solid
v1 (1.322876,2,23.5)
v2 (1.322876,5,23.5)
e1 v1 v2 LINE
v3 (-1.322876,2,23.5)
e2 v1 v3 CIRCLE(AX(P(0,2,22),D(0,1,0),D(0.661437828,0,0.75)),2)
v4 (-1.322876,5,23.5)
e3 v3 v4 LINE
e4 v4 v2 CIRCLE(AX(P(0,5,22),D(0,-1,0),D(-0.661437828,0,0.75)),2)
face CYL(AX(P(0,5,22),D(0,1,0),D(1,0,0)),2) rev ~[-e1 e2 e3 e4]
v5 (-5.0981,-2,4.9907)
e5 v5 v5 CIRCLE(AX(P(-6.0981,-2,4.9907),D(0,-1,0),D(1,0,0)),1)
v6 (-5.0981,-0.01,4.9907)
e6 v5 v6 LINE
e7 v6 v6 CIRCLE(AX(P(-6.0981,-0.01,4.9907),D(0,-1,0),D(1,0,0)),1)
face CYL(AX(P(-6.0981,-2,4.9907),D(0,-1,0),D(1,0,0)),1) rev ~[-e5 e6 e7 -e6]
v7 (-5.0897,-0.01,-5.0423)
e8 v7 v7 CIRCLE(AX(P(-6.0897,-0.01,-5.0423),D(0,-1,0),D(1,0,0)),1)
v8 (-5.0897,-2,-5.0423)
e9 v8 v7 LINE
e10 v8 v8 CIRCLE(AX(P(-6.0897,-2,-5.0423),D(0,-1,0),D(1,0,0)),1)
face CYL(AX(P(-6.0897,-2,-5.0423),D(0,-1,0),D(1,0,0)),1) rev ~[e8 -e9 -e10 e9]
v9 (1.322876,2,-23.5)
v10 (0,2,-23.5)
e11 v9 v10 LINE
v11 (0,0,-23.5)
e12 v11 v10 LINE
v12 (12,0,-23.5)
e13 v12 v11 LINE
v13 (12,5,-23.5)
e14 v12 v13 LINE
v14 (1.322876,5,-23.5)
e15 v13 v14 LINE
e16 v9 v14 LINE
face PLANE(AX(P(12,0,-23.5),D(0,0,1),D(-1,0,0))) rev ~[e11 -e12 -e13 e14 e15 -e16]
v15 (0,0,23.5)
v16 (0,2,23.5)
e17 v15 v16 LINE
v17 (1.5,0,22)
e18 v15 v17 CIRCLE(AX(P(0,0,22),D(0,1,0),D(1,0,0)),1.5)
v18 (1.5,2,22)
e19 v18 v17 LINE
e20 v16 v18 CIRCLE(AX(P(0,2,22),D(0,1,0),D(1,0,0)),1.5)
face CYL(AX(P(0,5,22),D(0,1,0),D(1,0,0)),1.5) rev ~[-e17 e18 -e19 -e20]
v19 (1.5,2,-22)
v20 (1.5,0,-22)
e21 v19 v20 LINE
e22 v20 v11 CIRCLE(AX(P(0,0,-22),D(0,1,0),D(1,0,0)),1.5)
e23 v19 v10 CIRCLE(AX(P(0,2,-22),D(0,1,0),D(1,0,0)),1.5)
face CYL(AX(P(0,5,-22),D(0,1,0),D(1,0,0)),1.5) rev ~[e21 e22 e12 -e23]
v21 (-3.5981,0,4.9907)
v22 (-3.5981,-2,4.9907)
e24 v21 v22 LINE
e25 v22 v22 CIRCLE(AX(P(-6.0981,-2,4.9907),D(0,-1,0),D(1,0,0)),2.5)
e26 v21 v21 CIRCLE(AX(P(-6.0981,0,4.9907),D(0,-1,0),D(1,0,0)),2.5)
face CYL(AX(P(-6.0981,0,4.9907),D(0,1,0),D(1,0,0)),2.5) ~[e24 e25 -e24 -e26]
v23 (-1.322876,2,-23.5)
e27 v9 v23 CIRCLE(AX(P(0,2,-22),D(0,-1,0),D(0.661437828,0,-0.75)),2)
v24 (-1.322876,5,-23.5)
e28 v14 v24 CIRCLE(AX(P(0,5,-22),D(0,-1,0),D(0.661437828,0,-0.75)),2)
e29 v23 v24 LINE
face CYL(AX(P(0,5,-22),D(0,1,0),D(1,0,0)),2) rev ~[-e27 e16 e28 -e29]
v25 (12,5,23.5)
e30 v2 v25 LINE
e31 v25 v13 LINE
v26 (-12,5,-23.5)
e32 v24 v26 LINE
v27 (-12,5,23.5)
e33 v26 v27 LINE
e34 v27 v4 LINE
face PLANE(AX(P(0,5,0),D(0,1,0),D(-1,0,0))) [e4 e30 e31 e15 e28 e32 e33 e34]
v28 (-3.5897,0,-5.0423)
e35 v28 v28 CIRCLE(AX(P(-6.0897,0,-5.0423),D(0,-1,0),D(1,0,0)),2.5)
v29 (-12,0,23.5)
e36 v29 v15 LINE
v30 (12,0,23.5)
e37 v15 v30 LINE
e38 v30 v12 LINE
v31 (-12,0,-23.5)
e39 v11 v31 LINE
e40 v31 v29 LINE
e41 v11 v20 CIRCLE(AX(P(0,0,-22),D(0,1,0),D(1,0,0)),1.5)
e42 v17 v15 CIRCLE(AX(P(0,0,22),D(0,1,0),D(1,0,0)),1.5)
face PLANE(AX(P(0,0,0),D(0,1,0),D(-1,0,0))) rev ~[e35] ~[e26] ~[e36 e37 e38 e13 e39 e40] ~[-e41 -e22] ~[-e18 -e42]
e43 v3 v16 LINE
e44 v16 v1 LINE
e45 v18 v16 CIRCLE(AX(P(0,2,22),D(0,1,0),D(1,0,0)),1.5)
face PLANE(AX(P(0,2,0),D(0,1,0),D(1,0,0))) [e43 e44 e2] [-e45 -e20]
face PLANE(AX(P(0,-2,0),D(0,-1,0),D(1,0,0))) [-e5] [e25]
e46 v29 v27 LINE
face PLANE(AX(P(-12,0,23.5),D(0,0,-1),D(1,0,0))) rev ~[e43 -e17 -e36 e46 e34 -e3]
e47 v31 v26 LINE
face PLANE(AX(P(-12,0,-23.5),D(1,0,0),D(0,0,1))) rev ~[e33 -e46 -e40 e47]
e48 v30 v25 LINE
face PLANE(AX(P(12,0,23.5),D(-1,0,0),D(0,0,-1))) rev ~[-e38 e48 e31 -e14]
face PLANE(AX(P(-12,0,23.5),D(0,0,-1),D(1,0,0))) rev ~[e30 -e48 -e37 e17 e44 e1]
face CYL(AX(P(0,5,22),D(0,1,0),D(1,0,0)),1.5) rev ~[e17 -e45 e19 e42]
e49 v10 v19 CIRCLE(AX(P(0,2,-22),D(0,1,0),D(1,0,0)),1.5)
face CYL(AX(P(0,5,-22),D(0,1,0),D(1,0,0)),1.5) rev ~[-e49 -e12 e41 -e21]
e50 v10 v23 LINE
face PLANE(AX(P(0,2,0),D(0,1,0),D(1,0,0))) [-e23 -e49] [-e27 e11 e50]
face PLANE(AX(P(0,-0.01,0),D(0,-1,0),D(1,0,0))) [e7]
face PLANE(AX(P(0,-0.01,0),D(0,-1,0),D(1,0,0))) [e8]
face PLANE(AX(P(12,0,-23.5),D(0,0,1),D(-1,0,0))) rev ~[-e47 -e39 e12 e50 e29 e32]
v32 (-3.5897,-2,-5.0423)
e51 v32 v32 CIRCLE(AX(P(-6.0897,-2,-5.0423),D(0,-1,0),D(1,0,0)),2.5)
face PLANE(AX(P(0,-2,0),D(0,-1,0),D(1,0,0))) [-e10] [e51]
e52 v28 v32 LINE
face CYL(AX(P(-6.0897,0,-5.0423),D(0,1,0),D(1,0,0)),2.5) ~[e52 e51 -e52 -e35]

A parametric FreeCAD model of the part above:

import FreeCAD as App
import Part
import Sketcher

V = App.Vector
Q = App.Units.Quantity

doc = App.newDocument("Part")
body = doc.addObject("PartDesign::Body", "Body")

# Sketch on XZ plane
sketch1 = body.newObject("Sketcher::SketchObject", "Sketch")
sketch1.AttachmentSupport = (doc.getObject("XZ_Plane"), [""])
sketch1.MapMode = "FlatFace"
sketch1.addGeometry([
    Part.LineSegment(V(-12, -24, 0), V(-12, 24, 0)),
    Part.LineSegment(V(-12, 24, 0), V(12, 24, 0)),
    Part.LineSegment(V(12, 24, 0), V(12, -24, 0)),
    Part.LineSegment(V(12, -24, 0), V(-12, -24, 0)),
], False)
sketch1.addConstraint([
    Sketcher.Constraint("Coincident", 0, 2, 1, 1),
    Sketcher.Constraint("Coincident", 1, 2, 2, 1),
    Sketcher.Constraint("Coincident", 2, 2, 3, 1),
    Sketcher.Constraint("Coincident", 3, 2, 0, 1),
    Sketcher.Constraint("Vertical", 0),
    Sketcher.Constraint("Horizontal", 1),
    Sketcher.Constraint("Vertical", 2),
    Sketcher.Constraint("Horizontal", 3),
    Sketcher.Constraint("Symmetric", 0, 2, 2, 2, -1, 1),
    Sketcher.Constraint("DistanceX", 0, 2, -1, 1, Q("12 mm")),
    Sketcher.Constraint("DistanceY", -1, 1, 0, 2, Q("23.5 mm")),
])
pad1 = body.newObject("PartDesign::Pad", "Pad")
pad1.Profile = sketch1
pad1.Length = 5
pad1.Reversed = True

# Sketch on XZ plane
sketch2 = body.newObject("Sketcher::SketchObject", "Sketch001")
sketch2.AttachmentSupport = (doc.getObject("XZ_Plane"), [""])
sketch2.MapMode = "FlatFace"
sketch2.AttachmentOffset = App.Placement(V(0, 0, -5), App.Rotation())
sketch2.addGeometry([
    Part.Circle(V(0, 22, 0), V(0, 0, 1), 1.5),
    Part.Circle(V(0, -22, 0), V(0, 0, 1), 1.5),
], False)
sketch2.addConstraint([
    Sketcher.Constraint("Equal", 0, 1),
    Sketcher.Constraint("Symmetric", 0, 3, 1, 3, -1, 1),
    Sketcher.Constraint("PointOnObject", 0, 3, -2),
    Sketcher.Constraint("Diameter", 0, Q("3 mm")),
    Sketcher.Constraint("DistanceY", -1, 1, 0, 3, Q("22 mm")),
])
pocket1 = body.newObject("PartDesign::Pocket", "Pocket")
pocket1.Profile = sketch2
pocket1.Length = 5
pocket1.Reversed = True

# Sketch on XZ plane
sketch3 = body.newObject("Sketcher::SketchObject", "Sketch002")
sketch3.AttachmentSupport = (doc.getObject("XZ_Plane"), [""])
sketch3.MapMode = "FlatFace"
sketch3.AttachmentOffset = App.Placement(V(0, 0, -5), App.Rotation())
sketch3.addGeometry([
    Part.Circle(V(0, 22, 0), V(0, 0, 1), 2),
    Part.Circle(V(0, 22, 0), V(0, 0, 1), 1.5),
    Part.Circle(V(0, -22, 0), V(0, 0, 1), 2),
    Part.Circle(V(0, -22, 0), V(0, 0, 1), 1.5),
], False)
sketch3.addConstraint([
    Sketcher.Constraint("Coincident", 1, 3, 0, 3),
    Sketcher.Constraint("Coincident", 3, 3, 2, 3),
    Sketcher.Constraint("Equal", 0, 2),
    Sketcher.Constraint("Equal", 1, 3),
    Sketcher.Constraint("Symmetric", 0, 3, 2, 3, -1, 1),
    Sketcher.Constraint("PointOnObject", 0, 3, -2),
    Sketcher.Constraint("Diameter", 0, Q("4 mm")),
    Sketcher.Constraint("Diameter", 1, Q("3 mm")),
    Sketcher.Constraint("DistanceY", -1, 1, 0, 3, Q("22 mm")),
])
pocket2 = body.newObject("PartDesign::Pocket", "Pocket001")
pocket2.Profile = sketch3
pocket2.Length = 3
pocket2.Reversed = True

# Sketch on XZ plane
sketch4 = body.newObject("Sketcher::SketchObject", "Sketch003")
sketch4.AttachmentSupport = (doc.getObject("XZ_Plane"), [""])
sketch4.MapMode = "FlatFace"
sketch4.addGeometry([
    Part.Circle(V(-6.1, 5, 0), V(0, 0, 1), 1.5),
    Part.Circle(V(-6.1, -5, 0), V(0, 0, 1), 1.5),
], False)
sketch4.addConstraint([
    Sketcher.Constraint("Equal", 0, 1),
    Sketcher.Constraint("Diameter", 0, Q("3 mm")),
    Sketcher.Constraint("DistanceX", 0, 3, -1, 1, Q("6.098 mm")),
    Sketcher.Constraint("DistanceY", 1, 3, 0, 3, Q("10.033 mm")),
    Sketcher.Constraint("DistanceY", -1, 1, 0, 3, Q("4.9907 mm")),
    Sketcher.Constraint("DistanceX", 1, 3, -1, 1, Q("6.0897 mm")),
])
pad2 = body.newObject("PartDesign::Pad", "Pad001")
pad2.Profile = sketch4
pad2.Length = 0.01

# Sketch on XZ plane
sketch5 = body.newObject("Sketcher::SketchObject", "Sketch004")
sketch5.AttachmentSupport = (doc.getObject("XZ_Plane"), [""])
sketch5.MapMode = "FlatFace"
sketch5.addGeometry([
    Part.Circle(V(-6.1, 5, 0), V(0, 0, 1), 2.5),
    Part.Circle(V(-6.1, 5, 0), V(0, 0, 1), 1.5),
    Part.Circle(V(-6.1, -5, 0), V(0, 0, 1), 2.5),
    Part.Circle(V(-6.1, -5, 0), V(0, 0, 1), 1.5),
], False)
sketch5.addConstraint([
    Sketcher.Constraint("Coincident", 1, 3, 0, 3),
    Sketcher.Constraint("Coincident", 3, 3, 2, 3),
    Sketcher.Constraint("Equal", 0, 2),
    Sketcher.Constraint("Equal", 1, 3),
    Sketcher.Constraint("Diameter", 0, Q("5 mm")),
    Sketcher.Constraint("Diameter", 1, Q("3 mm")),
    Sketcher.Constraint("DistanceX", 0, 3, -1, 1, Q("6.098 mm")),
    Sketcher.Constraint("DistanceY", 2, 3, 0, 3, Q("10.033 mm")),
    Sketcher.Constraint("DistanceY", -1, 1, 0, 3, Q("4.9907 mm")),
    Sketcher.Constraint("DistanceX", 2, 3, -1, 1, Q("6.0897 mm")),
])
pad3 = body.newObject("PartDesign::Pad", "Pad002")
pad3.Profile = sketch5
pad3.Length = 2

# Sketch on XZ plane
sketch6 = body.newObject("Sketcher::SketchObject", "Sketch005")
sketch6.AttachmentSupport = (doc.getObject("XZ_Plane"), [""])
sketch6.MapMode = "FlatFace"
sketch6.AttachmentOffset = App.Placement(V(0, 0, 2), App.Rotation())
sketch6.addGeometry([
    Part.Circle(V(-6.1, -5, 0), V(0, 0, 1), 1.5),
    Part.Circle(V(-6.1, -5, 0), V(0, 0, 1), 1),
    Part.Circle(V(-6.1, 5, 0), V(0, 0, 1), 1.5),
    Part.Circle(V(-6.1, 5, 0), V(0, 0, 1), 1),
], False)
sketch6.addConstraint([
    Sketcher.Constraint("Coincident", 1, 3, 0, 3),
    Sketcher.Constraint("Coincident", 3, 3, 2, 3),
    Sketcher.Constraint("Equal", 0, 2),
    Sketcher.Constraint("Equal", 1, 3),
    Sketcher.Constraint("Diameter", 1, Q("2 mm")),
    Sketcher.Constraint("Diameter", 0, Q("3 mm")),
    Sketcher.Constraint("DistanceX", 2, 3, -1, 1, Q("6.098 mm")),
    Sketcher.Constraint("DistanceY", 0, 3, 2, 3, Q("10.033 mm")),
    Sketcher.Constraint("DistanceX", 0, 3, -1, 1, Q("6.0897 mm")),
    Sketcher.Constraint("DistanceY", 0, 3, -1, 1, Q("5.0423 mm")),
])
pad4 = body.newObject("PartDesign::Pad", "Pad003")
pad4.Profile = sketch6
pad4.Length = 5
pad4.Reversed = True

doc.recompute()
